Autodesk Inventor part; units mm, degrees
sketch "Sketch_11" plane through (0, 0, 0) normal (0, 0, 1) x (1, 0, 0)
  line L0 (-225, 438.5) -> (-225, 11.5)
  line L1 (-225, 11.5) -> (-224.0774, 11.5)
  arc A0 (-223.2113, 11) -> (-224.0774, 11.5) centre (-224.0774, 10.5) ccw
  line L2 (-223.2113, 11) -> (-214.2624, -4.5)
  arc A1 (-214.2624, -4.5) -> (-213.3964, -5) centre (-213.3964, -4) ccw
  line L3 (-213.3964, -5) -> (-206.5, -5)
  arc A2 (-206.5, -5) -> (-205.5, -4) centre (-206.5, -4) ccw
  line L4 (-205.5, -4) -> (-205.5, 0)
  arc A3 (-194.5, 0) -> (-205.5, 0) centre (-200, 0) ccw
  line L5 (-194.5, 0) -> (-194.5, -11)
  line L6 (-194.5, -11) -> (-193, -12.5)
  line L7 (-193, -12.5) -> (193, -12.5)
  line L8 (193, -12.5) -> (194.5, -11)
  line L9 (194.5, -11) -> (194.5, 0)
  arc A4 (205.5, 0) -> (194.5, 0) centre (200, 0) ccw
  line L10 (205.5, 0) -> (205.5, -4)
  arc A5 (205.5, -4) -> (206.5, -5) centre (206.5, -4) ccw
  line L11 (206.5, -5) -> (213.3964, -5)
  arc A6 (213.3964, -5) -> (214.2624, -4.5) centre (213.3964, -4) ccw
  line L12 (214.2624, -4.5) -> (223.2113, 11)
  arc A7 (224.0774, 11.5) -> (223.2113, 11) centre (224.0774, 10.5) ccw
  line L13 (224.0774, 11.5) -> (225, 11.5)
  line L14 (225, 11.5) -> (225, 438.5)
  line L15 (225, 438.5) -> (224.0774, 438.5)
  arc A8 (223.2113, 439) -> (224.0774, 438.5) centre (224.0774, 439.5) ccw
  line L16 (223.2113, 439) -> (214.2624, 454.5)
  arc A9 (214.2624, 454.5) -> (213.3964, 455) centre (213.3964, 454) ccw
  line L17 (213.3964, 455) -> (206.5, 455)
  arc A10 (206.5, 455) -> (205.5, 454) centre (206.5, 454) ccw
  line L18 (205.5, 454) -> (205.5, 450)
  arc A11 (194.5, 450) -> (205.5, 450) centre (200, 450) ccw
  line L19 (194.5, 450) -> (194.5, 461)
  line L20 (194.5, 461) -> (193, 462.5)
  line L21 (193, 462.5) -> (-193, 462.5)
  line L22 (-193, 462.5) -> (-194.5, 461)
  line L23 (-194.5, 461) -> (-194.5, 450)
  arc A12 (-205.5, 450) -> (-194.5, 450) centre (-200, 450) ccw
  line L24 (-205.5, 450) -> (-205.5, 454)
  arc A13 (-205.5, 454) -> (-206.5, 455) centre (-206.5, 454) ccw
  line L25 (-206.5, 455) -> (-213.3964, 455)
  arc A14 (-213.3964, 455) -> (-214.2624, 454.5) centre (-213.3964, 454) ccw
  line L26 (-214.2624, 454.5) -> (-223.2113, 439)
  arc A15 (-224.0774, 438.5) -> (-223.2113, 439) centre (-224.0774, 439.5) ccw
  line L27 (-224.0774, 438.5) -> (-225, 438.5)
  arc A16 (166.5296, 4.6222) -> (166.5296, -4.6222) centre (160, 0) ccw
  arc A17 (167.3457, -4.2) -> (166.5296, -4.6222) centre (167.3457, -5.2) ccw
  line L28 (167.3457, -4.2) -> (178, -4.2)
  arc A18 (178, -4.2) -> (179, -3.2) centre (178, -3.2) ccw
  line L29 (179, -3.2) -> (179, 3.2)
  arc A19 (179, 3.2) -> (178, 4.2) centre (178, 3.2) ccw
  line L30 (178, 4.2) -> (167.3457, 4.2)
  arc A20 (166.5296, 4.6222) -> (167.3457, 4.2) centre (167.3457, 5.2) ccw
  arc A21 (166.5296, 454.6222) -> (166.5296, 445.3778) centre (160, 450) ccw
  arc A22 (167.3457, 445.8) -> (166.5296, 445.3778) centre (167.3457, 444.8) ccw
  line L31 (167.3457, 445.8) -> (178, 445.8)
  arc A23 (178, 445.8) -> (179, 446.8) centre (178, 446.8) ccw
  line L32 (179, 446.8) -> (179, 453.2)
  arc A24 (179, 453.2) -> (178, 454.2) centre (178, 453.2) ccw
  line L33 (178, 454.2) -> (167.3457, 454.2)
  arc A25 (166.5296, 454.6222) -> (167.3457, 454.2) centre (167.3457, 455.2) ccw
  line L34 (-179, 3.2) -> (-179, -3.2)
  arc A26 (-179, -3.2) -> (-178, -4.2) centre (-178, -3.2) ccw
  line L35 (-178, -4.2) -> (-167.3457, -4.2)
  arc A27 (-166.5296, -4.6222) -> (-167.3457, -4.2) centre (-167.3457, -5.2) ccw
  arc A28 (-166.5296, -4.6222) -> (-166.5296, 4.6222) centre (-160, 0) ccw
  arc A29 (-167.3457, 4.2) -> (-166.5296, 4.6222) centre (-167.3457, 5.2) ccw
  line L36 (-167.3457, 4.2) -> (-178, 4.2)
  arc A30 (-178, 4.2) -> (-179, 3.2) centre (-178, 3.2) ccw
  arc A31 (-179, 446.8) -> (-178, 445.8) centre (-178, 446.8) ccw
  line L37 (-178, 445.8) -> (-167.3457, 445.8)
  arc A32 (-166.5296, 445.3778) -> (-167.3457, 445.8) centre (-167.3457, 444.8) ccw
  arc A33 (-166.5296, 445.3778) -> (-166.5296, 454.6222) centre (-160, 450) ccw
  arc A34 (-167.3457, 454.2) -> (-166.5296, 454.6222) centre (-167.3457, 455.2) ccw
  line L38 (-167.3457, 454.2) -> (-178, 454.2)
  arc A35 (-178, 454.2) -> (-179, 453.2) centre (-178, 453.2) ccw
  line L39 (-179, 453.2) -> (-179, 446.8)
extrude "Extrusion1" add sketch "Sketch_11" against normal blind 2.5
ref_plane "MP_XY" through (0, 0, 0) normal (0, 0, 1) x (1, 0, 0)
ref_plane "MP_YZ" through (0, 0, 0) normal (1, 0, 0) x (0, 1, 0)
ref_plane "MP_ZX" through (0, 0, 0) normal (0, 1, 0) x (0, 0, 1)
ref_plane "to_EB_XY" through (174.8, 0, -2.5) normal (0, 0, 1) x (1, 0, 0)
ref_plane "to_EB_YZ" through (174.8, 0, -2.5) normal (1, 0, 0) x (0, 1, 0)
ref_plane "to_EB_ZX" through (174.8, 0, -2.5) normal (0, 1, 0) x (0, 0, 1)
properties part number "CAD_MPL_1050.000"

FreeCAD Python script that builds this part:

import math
import FreeCAD as App
import Part
import Sketcher
Q = App.Units.Quantity

doc = App.newDocument("Part")
body = doc.addObject("PartDesign::Body", "Body")

# Sketch on XY plane
sketch1 = body.newObject("Sketcher::SketchObject", "Sketch")
sketch1.AttachmentSupport = (doc.getObject("XY_Plane"), [""])
sketch1.MapMode = "FlatFace"
sketch1.addGeometry([
    Part.LineSegment(App.Vector(-224.1, 438.5, 0), App.Vector(-225, 438.5, 0)),  # 0
    Part.LineSegment(App.Vector(-225, 438.5, 0), App.Vector(-225, 11.5, 0)),  # 1
    Part.LineSegment(App.Vector(-225, 11.5, 0), App.Vector(-224.1, 11.5, 0)),  # 2
    Part.ArcOfCircle(Part.Circle(App.Vector(-224.1, 10.5, 0), App.Vector(0, 0, 1), 1), math.radians(30), math.radians(90)),  # 3
    Part.LineSegment(App.Vector(-223.2, 11, 0), App.Vector(-214.3, -4.5, 0)),  # 4
    Part.ArcOfCircle(Part.Circle(App.Vector(-213.4, -4, 0), App.Vector(0, 0, 1), 1), math.radians(-150), math.radians(-90)),  # 5
    Part.LineSegment(App.Vector(-213.4, -5, 0), App.Vector(-206.5, -5, 0)),  # 6
    Part.ArcOfCircle(Part.Circle(App.Vector(-206.5, -4, 0), App.Vector(0, 0, 1), 1), math.radians(-90), math.radians(0)),  # 7
    Part.LineSegment(App.Vector(-205.5, -4, 0), App.Vector(-205.5, 0, 0)),  # 8
    Part.ArcOfCircle(Part.Circle(App.Vector(-200, 0, 0), App.Vector(0, 0, 1), 5.5), math.radians(0), math.radians(180)),  # 9
    Part.LineSegment(App.Vector(-194.5, 0, 0), App.Vector(-194.5, -11, 0)),  # 10
    Part.LineSegment(App.Vector(-194.5, -11, 0), App.Vector(-193, -12.5, 0)),  # 11
    Part.LineSegment(App.Vector(-193, -12.5, 0), App.Vector(193, -12.5, 0)),  # 12
    Part.LineSegment(App.Vector(193, -12.5, 0), App.Vector(194.5, -11, 0)),  # 13
    Part.LineSegment(App.Vector(194.5, -11, 0), App.Vector(194.5, 0, 0)),  # 14
    Part.ArcOfCircle(Part.Circle(App.Vector(200, 0, 0), App.Vector(0, 0, 1), 5.5), math.radians(0), math.radians(180)),  # 15
    Part.LineSegment(App.Vector(205.5, 0, 0), App.Vector(205.5, -4, 0)),  # 16
    Part.ArcOfCircle(Part.Circle(App.Vector(206.5, -4, 0), App.Vector(0, 0, 1), 1), math.radians(180), math.radians(270)),  # 17
    Part.LineSegment(App.Vector(206.5, -5, 0), App.Vector(213.4, -5, 0)),  # 18
    Part.ArcOfCircle(Part.Circle(App.Vector(213.4, -4, 0), App.Vector(0, 0, 1), 1), math.radians(-90), math.radians(-30)),  # 19
    Part.LineSegment(App.Vector(214.3, -4.5, 0), App.Vector(223.2, 11, 0)),  # 20
    Part.ArcOfCircle(Part.Circle(App.Vector(224.1, 10.5, 0), App.Vector(0, 0, 1), 1), math.radians(90), math.radians(150)),  # 21
    Part.LineSegment(App.Vector(224.1, 11.5, 0), App.Vector(225, 11.5, 0)),  # 22
    Part.LineSegment(App.Vector(225, 11.5, 0), App.Vector(225, 438.5, 0)),  # 23
    Part.LineSegment(App.Vector(225, 438.5, 0), App.Vector(224.1, 438.5, 0)),  # 24
    Part.ArcOfCircle(Part.Circle(App.Vector(224.1, 439.5, 0), App.Vector(0, 0, 1), 1), math.radians(-150), math.radians(-90)),  # 25
    Part.LineSegment(App.Vector(223.2, 439, 0), App.Vector(214.3, 454.5, 0)),  # 26
    Part.ArcOfCircle(Part.Circle(App.Vector(213.4, 454, 0), App.Vector(0, 0, 1), 1), math.radians(30), math.radians(90)),  # 27
    Part.LineSegment(App.Vector(213.4, 455, 0), App.Vector(206.5, 455, 0)),  # 28
    Part.ArcOfCircle(Part.Circle(App.Vector(206.5, 454, 0), App.Vector(0, 0, 1), 1), math.radians(90), math.radians(180)),  # 29
    Part.LineSegment(App.Vector(205.5, 454, 0), App.Vector(205.5, 450, 0)),  # 30
    Part.ArcOfCircle(Part.Circle(App.Vector(200, 450, 0), App.Vector(0, 0, 1), 5.5), math.radians(180), math.radians(360)),  # 31
    Part.LineSegment(App.Vector(194.5, 450, 0), App.Vector(194.5, 461, 0)),  # 32
    Part.LineSegment(App.Vector(194.5, 461, 0), App.Vector(193, 462.5, 0)),  # 33
    Part.LineSegment(App.Vector(193, 462.5, 0), App.Vector(-193, 462.5, 0)),  # 34
    Part.LineSegment(App.Vector(-193, 462.5, 0), App.Vector(-194.5, 461, 0)),  # 35
    Part.LineSegment(App.Vector(-194.5, 461, 0), App.Vector(-194.5, 450, 0)),  # 36
    Part.ArcOfCircle(Part.Circle(App.Vector(-200, 450, 0), App.Vector(0, 0, 1), 5.5), math.radians(180), math.radians(360)),  # 37
    Part.LineSegment(App.Vector(-205.5, 450, 0), App.Vector(-205.5, 454, 0)),  # 38
    Part.ArcOfCircle(Part.Circle(App.Vector(-206.5, 454, 0), App.Vector(0, 0, 1), 1), math.radians(0), math.radians(90)),  # 39
    Part.LineSegment(App.Vector(-206.5, 455, 0), App.Vector(-213.4, 455, 0)),  # 40
    Part.ArcOfCircle(Part.Circle(App.Vector(-213.4, 454, 0), App.Vector(0, 0, 1), 1), math.radians(90), math.radians(150)),  # 41
    Part.LineSegment(App.Vector(-214.3, 454.5, 0), App.Vector(-223.2, 439, 0)),  # 42
    Part.ArcOfCircle(Part.Circle(App.Vector(-224.1, 439.5, 0), App.Vector(0, 0, 1), 1), math.radians(-90), math.radians(-30)),  # 43
    Part.LineSegment(App.Vector(-179, -3.2, 0), App.Vector(-179, 3.2, 0)),  # 44
    Part.ArcOfCircle(Part.Circle(App.Vector(-178, 3.2, 0), App.Vector(0, 0, 1), 1), math.radians(90), math.radians(180)),  # 45
    Part.LineSegment(App.Vector(-178, 4.2, 0), App.Vector(-167.3, 4.2, 0)),  # 46
    Part.ArcOfCircle(Part.Circle(App.Vector(-167.3, 5.2, 0), App.Vector(0, 0, 1), 1), math.radians(-90), math.radians(-35)),  # 47
    Part.ArcOfCircle(Part.Circle(App.Vector(-160, 0, 0), App.Vector(0, 0, 1), 8), math.radians(-145), math.radians(145)),  # 48
    Part.ArcOfCircle(Part.Circle(App.Vector(-167.3, -5.2, 0), App.Vector(0, 0, 1), 1), math.radians(35), math.radians(90)),  # 49
    Part.LineSegment(App.Vector(-167.3, -4.2, 0), App.Vector(-178, -4.2, 0)),  # 50
    Part.ArcOfCircle(Part.Circle(App.Vector(-178, -3.2, 0), App.Vector(0, 0, 1), 1), math.radians(180), math.radians(270)),  # 51
    Part.ArcOfCircle(Part.Circle(App.Vector(160, 0, 0), App.Vector(0, 0, 1), 8), math.radians(35), math.radians(325)),  # 52
    Part.ArcOfCircle(Part.Circle(App.Vector(167.3, 5.2, 0), App.Vector(0, 0, 1), 1), math.radians(-145), math.radians(-90)),  # 53
    Part.LineSegment(App.Vector(167.3, 4.2, 0), App.Vector(178, 4.2, 0)),  # 54
    Part.ArcOfCircle(Part.Circle(App.Vector(178, 3.2, 0), App.Vector(0, 0, 1), 1), math.radians(0), math.radians(90)),  # 55
    Part.LineSegment(App.Vector(179, 3.2, 0), App.Vector(179, -3.2, 0)),  # 56
    Part.ArcOfCircle(Part.Circle(App.Vector(178, -3.2, 0), App.Vector(0, 0, 1), 1), math.radians(-90), math.radians(0)),  # 57
    Part.LineSegment(App.Vector(178, -4.2, 0), App.Vector(167.3, -4.2, 0)),  # 58
    Part.ArcOfCircle(Part.Circle(App.Vector(167.3, -5.2, 0), App.Vector(0, 0, 1), 1), math.radians(90), math.radians(145)),  # 59
    Part.ArcOfCircle(Part.Circle(App.Vector(-178, 446.8, 0), App.Vector(0, 0, 1), 1), math.radians(180), math.radians(270)),  # 60
    Part.LineSegment(App.Vector(-179, 446.8, 0), App.Vector(-179, 453.2, 0)),  # 61
    Part.ArcOfCircle(Part.Circle(App.Vector(-178, 453.2, 0), App.Vector(0, 0, 1), 1), math.radians(90), math.radians(180)),  # 62
    Part.LineSegment(App.Vector(-178, 454.2, 0), App.Vector(-167.3, 454.2, 0)),  # 63
    Part.ArcOfCircle(Part.Circle(App.Vector(-167.3, 455.2, 0), App.Vector(0, 0, 1), 1), math.radians(-90), math.radians(-35)),  # 64
    Part.ArcOfCircle(Part.Circle(App.Vector(-160, 450, 0), App.Vector(0, 0, 1), 8), math.radians(-145), math.radians(145)),  # 65
    Part.ArcOfCircle(Part.Circle(App.Vector(-167.3, 444.8, 0), App.Vector(0, 0, 1), 1), math.radians(35), math.radians(90)),  # 66
    Part.LineSegment(App.Vector(-167.3, 445.8, 0), App.Vector(-178, 445.8, 0)),  # 67
    Part.ArcOfCircle(Part.Circle(App.Vector(160, 450, 0), App.Vector(0, 0, 1), 8), math.radians(35), math.radians(325)),  # 68
    Part.ArcOfCircle(Part.Circle(App.Vector(167.3, 455.2, 0), App.Vector(0, 0, 1), 1), math.radians(-145), math.radians(-90)),  # 69
    Part.LineSegment(App.Vector(167.3, 454.2, 0), App.Vector(178, 454.2, 0)),  # 70
    Part.ArcOfCircle(Part.Circle(App.Vector(178, 453.2, 0), App.Vector(0, 0, 1), 1), math.radians(0), math.radians(90)),  # 71
    Part.LineSegment(App.Vector(179, 453.2, 0), App.Vector(179, 446.8, 0)),  # 72
    Part.ArcOfCircle(Part.Circle(App.Vector(178, 446.8, 0), App.Vector(0, 0, 1), 1), math.radians(-90), math.radians(0)),  # 73
    Part.LineSegment(App.Vector(178, 445.8, 0), App.Vector(167.3, 445.8, 0)),  # 74
    Part.ArcOfCircle(Part.Circle(App.Vector(167.3, 444.8, 0), App.Vector(0, 0, 1), 1), math.radians(90), math.radians(145)),  # 75
], False)
sketch1.addConstraint([
    Sketcher.Constraint("Coincident", 0, 2, 1, 1),
    Sketcher.Constraint("Coincident", 1, 2, 2, 1),
    Sketcher.Constraint("Tangent", 2, 2, 3, 2),
    Sketcher.Constraint("Tangent", 3, 1, 4, 1),
    Sketcher.Constraint("Tangent", 4, 2, 5, 1),
    Sketcher.Constraint("Tangent", 5, 2, 6, 1),
    Sketcher.Constraint("Tangent", 6, 2, 7, 1),
    Sketcher.Constraint("Tangent", 7, 2, 8, 1),
    Sketcher.Constraint("Tangent", 8, 2, 9, 2),
    Sketcher.Constraint("Tangent", 9, 1, 10, 1),
    Sketcher.Constraint("Coincident", 10, 2, 11, 1),
    Sketcher.Constraint("Coincident", 11, 2, 12, 1),
    Sketcher.Constraint("Coincident", 12, 2, 13, 1),
    Sketcher.Constraint("Coincident", 13, 2, 14, 1),
    Sketcher.Constraint("Tangent", 14, 2, 15, 2),
    Sketcher.Constraint("Tangent", 15, 1, 16, 1),
    Sketcher.Constraint("Tangent", 16, 2, 17, 1),
    Sketcher.Constraint("Tangent", 17, 2, 18, 1),
    Sketcher.Constraint("Tangent", 18, 2, 19, 1),
    Sketcher.Constraint("Tangent", 19, 2, 20, 1),
    Sketcher.Constraint("Tangent", 20, 2, 21, 2),
    Sketcher.Constraint("Tangent", 21, 1, 22, 1),
    Sketcher.Constraint("Coincident", 22, 2, 23, 1),
    Sketcher.Constraint("Coincident", 23, 2, 24, 1),
    Sketcher.Constraint("Tangent", 24, 2, 25, 2),
    Sketcher.Constraint("Tangent", 25, 1, 26, 1),
    Sketcher.Constraint("Tangent", 26, 2, 27, 1),
    Sketcher.Constraint("Tangent", 27, 2, 28, 1),
    Sketcher.Constraint("Tangent", 28, 2, 29, 1),
    Sketcher.Constraint("Tangent", 29, 2, 30, 1),
    Sketcher.Constraint("Tangent", 30, 2, 31, 2),
    Sketcher.Constraint("Tangent", 31, 1, 32, 1),
    Sketcher.Constraint("Coincident", 32, 2, 33, 1),
    Sketcher.Constraint("Coincident", 33, 2, 34, 1),
    Sketcher.Constraint("Coincident", 34, 2, 35, 1),
    Sketcher.Constraint("Coincident", 35, 2, 36, 1),
    Sketcher.Constraint("Tangent", 36, 2, 37, 2),
    Sketcher.Constraint("Tangent", 37, 1, 38, 1),
    Sketcher.Constraint("Tangent", 38, 2, 39, 1),
    Sketcher.Constraint("Tangent", 39, 2, 40, 1),
    Sketcher.Constraint("Tangent", 40, 2, 41, 1),
    Sketcher.Constraint("Tangent", 41, 2, 42, 1),
    Sketcher.Constraint("Tangent", 42, 2, 43, 2),
    Sketcher.Constraint("Tangent", 43, 1, 0, 1),
    Sketcher.Constraint("Tangent", 44, 2, 45, 2),
    Sketcher.Constraint("Tangent", 45, 1, 46, 1),
    Sketcher.Constraint("Tangent", 46, 2, 47, 1),
    Sketcher.Constraint("Tangent", 47, 2, 48, 2),
    Sketcher.Constraint("Tangent", 48, 1, 49, 1),
    Sketcher.Constraint("Tangent", 49, 2, 50, 1),
    Sketcher.Constraint("Tangent", 50, 2, 51, 2),
    Sketcher.Constraint("Tangent", 51, 1, 44, 1),
    Sketcher.Constraint("Tangent", 52, 1, 53, 1),
    Sketcher.Constraint("Tangent", 53, 2, 54, 1),
    Sketcher.Constraint("Tangent", 54, 2, 55, 2),
    Sketcher.Constraint("Tangent", 55, 1, 56, 1),
    Sketcher.Constraint("Tangent", 56, 2, 57, 2),
    Sketcher.Constraint("Tangent", 57, 1, 58, 1),
    Sketcher.Constraint("Tangent", 58, 2, 59, 1),
    Sketcher.Constraint("Tangent", 59, 2, 52, 2),
    Sketcher.Constraint("Tangent", 60, 1, 61, 1),
    Sketcher.Constraint("Tangent", 61, 2, 62, 2),
    Sketcher.Constraint("Tangent", 62, 1, 63, 1),
    Sketcher.Constraint("Tangent", 63, 2, 64, 1),
    Sketcher.Constraint("Tangent", 64, 2, 65, 2),
    Sketcher.Constraint("Tangent", 65, 1, 66, 1),
    Sketcher.Constraint("Tangent", 66, 2, 67, 1),
    Sketcher.Constraint("Tangent", 67, 2, 60, 2),
    Sketcher.Constraint("Tangent", 68, 1, 69, 1),
    Sketcher.Constraint("Tangent", 69, 2, 70, 1),
    Sketcher.Constraint("Tangent", 70, 2, 71, 2),
    Sketcher.Constraint("Tangent", 71, 1, 72, 1),
    Sketcher.Constraint("Tangent", 72, 2, 73, 2),
    Sketcher.Constraint("Tangent", 73, 1, 74, 1),
    Sketcher.Constraint("Tangent", 74, 2, 75, 1),
    Sketcher.Constraint("Tangent", 75, 2, 68, 2),
    Sketcher.Constraint("Horizontal", 0),
    Sketcher.Constraint("Vertical", 1),
    Sketcher.Constraint("Horizontal", 2),
    Sketcher.Constraint("Horizontal", 6),
    Sketcher.Constraint("Vertical", 8),
    Sketcher.Constraint("Vertical", 10),
    Sketcher.Constraint("Horizontal", 12),
    Sketcher.Constraint("Vertical", 14),
    Sketcher.Constraint("Vertical", 16),
    Sketcher.Constraint("Horizontal", 18),
    Sketcher.Constraint("Horizontal", 22),
    Sketcher.Constraint("Vertical", 23),
    Sketcher.Constraint("Horizontal", 24),
    Sketcher.Constraint("Horizontal", 28),
    Sketcher.Constraint("Vertical", 30),
    Sketcher.Constraint("Vertical", 32),
    Sketcher.Constraint("Horizontal", 34),
    Sketcher.Constraint("Vertical", 36),
    Sketcher.Constraint("Vertical", 38),
    Sketcher.Constraint("Horizontal", 40),
    Sketcher.Constraint("Vertical", 44),
    Sketcher.Constraint("Horizontal", 46),
    Sketcher.Constraint("Horizontal", 50),
    Sketcher.Constraint("Horizontal", 54),
    Sketcher.Constraint("Vertical", 56),
    Sketcher.Constraint("Horizontal", 58),
    Sketcher.Constraint("Vertical", 61),
    Sketcher.Constraint("Horizontal", 63),
    Sketcher.Constraint("Horizontal", 67),
    Sketcher.Constraint("Horizontal", 70),
    Sketcher.Constraint("Vertical", 72),
    Sketcher.Constraint("Horizontal", 74),
    Sketcher.Constraint("Equal", 3, 5),
    Sketcher.Constraint("Equal", 5, 7),
    Sketcher.Constraint("Equal", 9, 15),
    Sketcher.Constraint("Equal", 7, 17),
    Sketcher.Constraint("Equal", 17, 19),
    Sketcher.Constraint("Equal", 19, 21),
    Sketcher.Constraint("Equal", 21, 25),
    Sketcher.Constraint("Equal", 25, 27),
    Sketcher.Constraint("Equal", 27, 29),
    Sketcher.Constraint("Equal", 15, 31),
    Sketcher.Constraint("Equal", 31, 37),
    Sketcher.Constraint("Equal", 29, 39),
    Sketcher.Constraint("Equal", 39, 41),
    Sketcher.Constraint("Equal", 41, 43),
    Sketcher.Constraint("Equal", 43, 45),
    Sketcher.Constraint("Equal", 45, 47),
    Sketcher.Constraint("Equal", 47, 49),
    Sketcher.Constraint("Equal", 49, 51),
    Sketcher.Constraint("Equal", 48, 52),
    Sketcher.Constraint("Equal", 51, 53),
    Sketcher.Constraint("Equal", 53, 55),
    Sketcher.Constraint("Equal", 55, 57),
    Sketcher.Constraint("Equal", 57, 59),
    Sketcher.Constraint("Equal", 59, 60),
    Sketcher.Constraint("Equal", 60, 62),
    Sketcher.Constraint("Equal", 62, 64),
    Sketcher.Constraint("Equal", 52, 65),
    Sketcher.Constraint("Equal", 64, 66),
    Sketcher.Constraint("Equal", 65, 68),
    Sketcher.Constraint("Equal", 66, 69),
    Sketcher.Constraint("Equal", 69, 71),
    Sketcher.Constraint("Equal", 71, 73),
    Sketcher.Constraint("Equal", 73, 75),
    Sketcher.Constraint("Symmetric", 9, 3, 15, 3, -1, 1),
    Sketcher.Constraint("Symmetric", 48, 3, 52, 3, -1, 1),
    Sketcher.Constraint("Symmetric", 51, 3, 55, 3, -1, 1),
    Sketcher.Constraint("Symmetric", 5, 3, 19, 3, -2),
    Sketcher.Constraint("Symmetric", 3, 3, 21, 3, -2),
    Sketcher.Constraint("Symmetric", 31, 3, 37, 3, -2),
    Sketcher.Constraint("Symmetric", 27, 3, 41, 3, -2),
    Sketcher.Constraint("Symmetric", 25, 3, 43, 3, -2),
    Sketcher.Constraint("Symmetric", 47, 3, 53, 3, -2),
    Sketcher.Constraint("Symmetric", 65, 3, 68, 3, -2),
    Sketcher.Constraint("Symmetric", 62, 3, 71, 3, -2),
    Sketcher.Constraint("PointOnObject", 9, 3, -1),
    Sketcher.Constraint("Perpendicular", 11, 13),
    Sketcher.Constraint("Parallel", 4, 26),
    Sketcher.Constraint("Perpendicular", 13, 33),
    Sketcher.Constraint("Perpendicular", 33, 35),
    Sketcher.Constraint("Horizontal", 51, 3, 57, 3),
    Sketcher.Constraint("Horizontal", 37, 3, 65, 3),
    Sketcher.Constraint("Horizontal", 60, 3, 73, 3),
    Sketcher.Constraint("Horizontal", 10, 2, 13, 2),
    Sketcher.Constraint("Horizontal", 32, 2, 35, 2),
    Sketcher.Constraint("Vertical", 21, 3, 25, 3),
    Sketcher.Constraint("Vertical", 19, 3, 27, 3),
    Sketcher.Constraint("Vertical", 17, 3, 29, 3),
    Sketcher.Constraint("Vertical", 51, 3, 60, 3),
    Sketcher.Constraint("Vertical", 49, 3, 64, 3),
    Sketcher.Constraint("Vertical", 48, 3, 65, 3),
    Sketcher.Constraint("Vertical", 64, 3, 66, 3),
    Sketcher.Constraint("Vertical", 12, 2, 33, 2),
    Sketcher.Constraint("Vertical", 11, 2, 34, 2),
    Sketcher.Constraint("Equal", 2, 22),
    Sketcher.Constraint("Equal", 16, 30),
    Sketcher.Constraint("Equal", 14, 32),
    Sketcher.Constraint("Radius", 3, 1.0),
    Sketcher.Constraint("Radius", 48, 8.0),
    Sketcher.Constraint("Radius", 9, 5.5),
    Sketcher.Constraint("DistanceX", 12, 1, 12, 2, 386.0),
    Sketcher.Constraint("DistanceY", 1, 2, 1, 1, 427.0),
    Sketcher.Constraint("DistanceY", 8, 1, 8, 2, 4.0),
    Sketcher.Constraint("DistanceY", 10, 2, 10, 1, 11.0),
    Sketcher.Constraint("Angle", 4, Q("-60 deg")),
    Sketcher.Constraint("DistanceY", 44, 1, 44, 2, 6.4),
    Sketcher.Constraint("DistanceX", 9, 3, -1, 1, 200.0),
    Sketcher.Constraint("DistanceY", -1, 1, 27, 3, 454.0),
    Sketcher.Constraint("DistanceX", 45, 3, -1, 1, 178.0),
    Sketcher.Constraint("DistanceX", 48, 3, -1, 1, 160.0),
    Sketcher.Constraint("DistanceX", 0, 2, -1, 1, 225.0),
    Sketcher.Constraint("DistanceX", 0, 2, 0, 1, 0.9226),
])
pad1 = body.newObject("PartDesign::Pad", "Pad")
pad1.Profile = sketch1
pad1.Length = 2.5
pad1.Reversed = True

doc.recompute()
